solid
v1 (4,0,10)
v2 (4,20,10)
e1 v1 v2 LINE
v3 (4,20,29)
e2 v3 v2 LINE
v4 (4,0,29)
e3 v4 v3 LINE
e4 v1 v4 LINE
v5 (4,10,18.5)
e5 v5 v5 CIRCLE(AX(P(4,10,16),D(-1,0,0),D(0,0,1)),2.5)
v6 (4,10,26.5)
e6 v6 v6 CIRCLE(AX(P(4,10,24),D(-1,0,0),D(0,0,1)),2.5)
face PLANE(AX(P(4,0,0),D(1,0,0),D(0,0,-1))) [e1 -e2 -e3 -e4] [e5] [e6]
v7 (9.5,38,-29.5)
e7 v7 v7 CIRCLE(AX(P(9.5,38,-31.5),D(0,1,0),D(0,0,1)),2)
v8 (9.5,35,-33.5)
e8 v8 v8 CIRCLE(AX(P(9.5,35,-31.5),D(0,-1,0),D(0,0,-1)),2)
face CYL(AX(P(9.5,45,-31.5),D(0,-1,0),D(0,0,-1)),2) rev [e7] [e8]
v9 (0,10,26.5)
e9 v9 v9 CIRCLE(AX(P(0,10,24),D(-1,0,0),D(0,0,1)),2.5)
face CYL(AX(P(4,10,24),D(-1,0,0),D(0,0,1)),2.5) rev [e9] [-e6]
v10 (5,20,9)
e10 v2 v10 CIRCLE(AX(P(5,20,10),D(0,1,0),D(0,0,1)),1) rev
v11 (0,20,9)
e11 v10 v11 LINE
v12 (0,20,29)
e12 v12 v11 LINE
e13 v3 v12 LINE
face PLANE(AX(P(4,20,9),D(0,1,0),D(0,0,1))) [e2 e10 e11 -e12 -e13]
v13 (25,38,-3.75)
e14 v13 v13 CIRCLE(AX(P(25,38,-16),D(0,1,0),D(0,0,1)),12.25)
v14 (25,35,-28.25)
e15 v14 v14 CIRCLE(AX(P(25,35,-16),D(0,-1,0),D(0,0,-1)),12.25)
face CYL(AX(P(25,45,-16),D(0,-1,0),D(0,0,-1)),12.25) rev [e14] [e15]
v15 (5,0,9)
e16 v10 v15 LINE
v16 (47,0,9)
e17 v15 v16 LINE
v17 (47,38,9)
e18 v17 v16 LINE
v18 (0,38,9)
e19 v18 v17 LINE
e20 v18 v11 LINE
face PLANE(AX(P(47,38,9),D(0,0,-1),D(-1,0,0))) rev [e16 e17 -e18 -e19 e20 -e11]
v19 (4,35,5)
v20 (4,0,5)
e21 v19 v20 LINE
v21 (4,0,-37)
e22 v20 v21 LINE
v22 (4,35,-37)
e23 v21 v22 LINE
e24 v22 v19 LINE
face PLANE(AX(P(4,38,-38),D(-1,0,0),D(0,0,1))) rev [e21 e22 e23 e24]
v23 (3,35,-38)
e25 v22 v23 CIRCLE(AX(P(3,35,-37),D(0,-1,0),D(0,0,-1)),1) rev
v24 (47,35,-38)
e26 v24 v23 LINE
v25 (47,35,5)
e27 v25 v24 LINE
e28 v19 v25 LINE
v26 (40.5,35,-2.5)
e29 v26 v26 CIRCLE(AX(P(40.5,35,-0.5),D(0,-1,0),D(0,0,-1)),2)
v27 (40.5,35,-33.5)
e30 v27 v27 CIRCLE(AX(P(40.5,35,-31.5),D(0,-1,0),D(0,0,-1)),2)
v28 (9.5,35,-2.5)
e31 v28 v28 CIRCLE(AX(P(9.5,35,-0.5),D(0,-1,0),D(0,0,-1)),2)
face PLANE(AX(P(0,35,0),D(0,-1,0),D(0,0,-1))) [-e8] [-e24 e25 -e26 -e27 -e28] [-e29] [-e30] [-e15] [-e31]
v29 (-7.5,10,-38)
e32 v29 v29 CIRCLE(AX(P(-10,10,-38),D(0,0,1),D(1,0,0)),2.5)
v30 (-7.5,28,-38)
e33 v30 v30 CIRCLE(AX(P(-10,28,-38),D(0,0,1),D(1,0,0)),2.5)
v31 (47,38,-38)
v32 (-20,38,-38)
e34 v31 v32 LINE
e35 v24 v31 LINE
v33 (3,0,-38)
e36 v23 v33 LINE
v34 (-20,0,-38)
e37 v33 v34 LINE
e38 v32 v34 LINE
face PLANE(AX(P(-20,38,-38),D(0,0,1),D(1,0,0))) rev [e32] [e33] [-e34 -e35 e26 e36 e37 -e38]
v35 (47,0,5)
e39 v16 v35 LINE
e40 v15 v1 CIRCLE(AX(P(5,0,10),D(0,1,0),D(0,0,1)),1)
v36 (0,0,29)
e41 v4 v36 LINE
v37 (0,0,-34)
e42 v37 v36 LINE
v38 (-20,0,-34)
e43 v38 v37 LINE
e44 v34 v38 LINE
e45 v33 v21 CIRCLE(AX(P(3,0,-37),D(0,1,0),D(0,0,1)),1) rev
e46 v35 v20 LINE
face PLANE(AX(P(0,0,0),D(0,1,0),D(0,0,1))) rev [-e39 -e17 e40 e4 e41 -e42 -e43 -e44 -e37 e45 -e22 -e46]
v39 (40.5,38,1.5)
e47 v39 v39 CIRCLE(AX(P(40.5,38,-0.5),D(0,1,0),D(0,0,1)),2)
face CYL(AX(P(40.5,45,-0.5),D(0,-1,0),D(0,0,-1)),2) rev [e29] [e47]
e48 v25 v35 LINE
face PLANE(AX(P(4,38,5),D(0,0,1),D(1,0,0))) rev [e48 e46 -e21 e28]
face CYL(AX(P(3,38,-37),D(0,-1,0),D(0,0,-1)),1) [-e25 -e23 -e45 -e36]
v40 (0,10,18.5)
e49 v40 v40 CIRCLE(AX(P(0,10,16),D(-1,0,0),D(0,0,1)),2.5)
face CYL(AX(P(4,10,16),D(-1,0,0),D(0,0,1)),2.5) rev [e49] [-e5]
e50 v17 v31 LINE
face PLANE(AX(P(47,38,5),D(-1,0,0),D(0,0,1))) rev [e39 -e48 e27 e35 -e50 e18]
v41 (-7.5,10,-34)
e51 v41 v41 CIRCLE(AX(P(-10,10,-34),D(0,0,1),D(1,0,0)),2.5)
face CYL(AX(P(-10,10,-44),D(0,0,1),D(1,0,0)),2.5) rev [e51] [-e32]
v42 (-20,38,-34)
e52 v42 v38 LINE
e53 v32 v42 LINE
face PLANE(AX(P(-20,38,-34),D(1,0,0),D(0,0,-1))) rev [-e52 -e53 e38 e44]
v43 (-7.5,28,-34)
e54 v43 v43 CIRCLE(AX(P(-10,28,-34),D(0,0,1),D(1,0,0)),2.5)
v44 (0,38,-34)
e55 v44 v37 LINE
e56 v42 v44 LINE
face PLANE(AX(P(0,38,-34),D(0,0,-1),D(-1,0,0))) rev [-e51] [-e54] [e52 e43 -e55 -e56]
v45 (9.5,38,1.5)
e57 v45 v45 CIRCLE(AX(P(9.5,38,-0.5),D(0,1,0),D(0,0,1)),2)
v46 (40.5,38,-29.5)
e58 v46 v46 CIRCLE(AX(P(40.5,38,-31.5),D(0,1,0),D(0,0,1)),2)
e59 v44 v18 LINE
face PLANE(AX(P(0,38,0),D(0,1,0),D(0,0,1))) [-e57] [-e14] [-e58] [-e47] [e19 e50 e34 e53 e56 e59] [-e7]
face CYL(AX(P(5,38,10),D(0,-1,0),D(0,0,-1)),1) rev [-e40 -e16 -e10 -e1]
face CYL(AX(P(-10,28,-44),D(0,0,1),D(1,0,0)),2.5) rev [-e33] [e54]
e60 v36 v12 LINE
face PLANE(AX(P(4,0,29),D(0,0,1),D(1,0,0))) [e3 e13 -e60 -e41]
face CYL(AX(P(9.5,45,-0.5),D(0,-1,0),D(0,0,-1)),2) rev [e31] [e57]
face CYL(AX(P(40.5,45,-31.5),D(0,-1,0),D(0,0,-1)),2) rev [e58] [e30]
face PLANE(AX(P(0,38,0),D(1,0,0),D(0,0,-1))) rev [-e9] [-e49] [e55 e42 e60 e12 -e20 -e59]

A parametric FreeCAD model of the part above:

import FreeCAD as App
import Part
import Sketcher
from FreeCAD import Vector


def edges_at(feature, points):
    """Names of the edges that pass closest to the given points."""
    edges = feature.Shape.Edges
    near = lambda p: min(range(len(edges)), key=lambda i: edges[i].distToShape(Part.Vertex(*p))[0])
    return sorted({f"Edge{near(p) + 1}" for p in points})


def add_polygon(sketch, points):
    """Adds a closed chain of lines whose ends are joined by coincident constraints."""
    first, n = sketch.GeometryCount, len(points)
    for a, b in zip(points, points[1:] + points[:1]):
        sketch.addGeometry(Part.LineSegment(App.Vector(*a, 0), App.Vector(*b, 0)), False)
    for i in range(n):
        sketch.addConstraint(Sketcher.Constraint("Coincident", first + i, 2, first + (i + 1) % n, 1))

doc = App.newDocument("Part")
body = doc.addObject("PartDesign::Body", "Body")

sketch1 = doc.addObject("Sketcher::SketchObject", "Sketch")
body.addObject(sketch1)
sketch1.AttachmentSupport = (doc.XZ_Plane, [""])
sketch1.MapMode = "FlatFace"
add_polygon(sketch1, [(0, -34), (0, 9), (47, 9), (47, 5), (4, 5), (4, -38), (-20, -38), (-20, -34)])
sketch1.addConstraint(Sketcher.Constraint("Vertical", 0))
sketch1.addConstraint(Sketcher.Constraint("Horizontal", 1))
sketch1.addConstraint(Sketcher.Constraint("Vertical", 2))
sketch1.addConstraint(Sketcher.Constraint("Horizontal", 3))
sketch1.addConstraint(Sketcher.Constraint("Vertical", 4))
sketch1.addConstraint(Sketcher.Constraint("Horizontal", 5))
sketch1.addConstraint(Sketcher.Constraint("Vertical", 6))
sketch1.addConstraint(Sketcher.Constraint("Horizontal", 7))
sketch1.addConstraint(Sketcher.Constraint("PointOnObject", 0, 2, -2))
sketch1.addConstraint(Sketcher.Constraint("Equal", 3, 0))
sketch1.addConstraint(Sketcher.Constraint("Equal", 0, 4))
sketch1.addConstraint(Sketcher.Constraint("DistanceX", 1, 1, 1, 2, 47.0))
sketch1.addConstraint(Sketcher.Constraint("DistanceX", 3, 2, 3, 1, 43.0))
sketch1.addConstraint(Sketcher.Constraint("DistanceX", 5, 2, 5, 1, 24.0))
sketch1.addConstraint(Sketcher.Constraint("DistanceY", 2, 2, 2, 1, 4.0))
sketch1.addConstraint(Sketcher.Constraint("DistanceY", -1, 1, 0, 2, 9.0))
pad1 = doc.addObject("PartDesign::Pad", "Pad")
body.addObject(pad1)
pad1.Profile = sketch1
pad1.Length = 38
pad1.Reversed = True

sketch2 = doc.addObject("Sketcher::SketchObject", "Sketch001")
body.addObject(sketch2)
sketch2.AttachmentSupport = (doc.XZ_Plane, [""])
sketch2.MapMode = "FlatFace"
sketch2.AttachmentOffset = App.Placement(Vector(0, 0, -38), App.Rotation())
add_polygon(sketch2, [(4, -38), (4, 5), (47, 5), (47, -38)])
sketch2.addConstraint(Sketcher.Constraint("Vertical", 0))
sketch2.addConstraint(Sketcher.Constraint("Horizontal", 1))
sketch2.addConstraint(Sketcher.Constraint("Vertical", 2))
sketch2.addConstraint(Sketcher.Constraint("Horizontal", 3))
sketch2.addConstraint(Sketcher.Constraint("Equal", 3, 0))
sketch2.addConstraint(Sketcher.Constraint("DistanceX", 1, 1, 1, 2, 43.0))
sketch2.addConstraint(Sketcher.Constraint("DistanceX", -1, 1, 0, 2, 4.0))
sketch2.addConstraint(Sketcher.Constraint("DistanceY", -1, 1, 0, 2, 5.0))
pad2 = doc.addObject("PartDesign::Pad", "Pad001")
body.addObject(pad2)
pad2.Profile = sketch2
pad2.Length = 3

sketch3 = doc.addObject("Sketcher::SketchObject", "Sketch002")
body.addObject(sketch3)
sketch3.AttachmentSupport = (doc.XZ_Plane, [""])
sketch3.MapMode = "FlatFace"
sketch3.AttachmentOffset = App.Placement(Vector(0, 0, -35), App.Rotation())
sketch3.addGeometry(Part.Circle(Vector(40.5, -31.5, 0), Vector(0, 0, 1), 2), False)
sketch3.addGeometry(Part.Circle(Vector(9.5, -31.5, 0), Vector(0, 0, 1), 2), False)
sketch3.addGeometry(Part.Circle(Vector(9.5, -0.5, 0), Vector(0, 0, 1), 2), False)
sketch3.addGeometry(Part.Circle(Vector(40.5, -0.5, 0), Vector(0, 0, 1), 2), False)
sketch3.addGeometry(Part.Circle(Vector(25, -16, 0), Vector(0, 0, 1), 12.2), False)
sketch3.addConstraint(Sketcher.Constraint("Equal", 0, 1))
sketch3.addConstraint(Sketcher.Constraint("Equal", 1, 2))
sketch3.addConstraint(Sketcher.Constraint("Equal", 2, 3))
sketch3.addConstraint(Sketcher.Constraint("Horizontal", 0, 3, 1, 3))
sketch3.addConstraint(Sketcher.Constraint("Horizontal", 2, 3, 3, 3))
sketch3.addConstraint(Sketcher.Constraint("Vertical", 1, 3, 2, 3))
sketch3.addConstraint(Sketcher.Constraint("Vertical", 0, 3, 3, 3))
sketch3.addConstraint(Sketcher.Constraint("Diameter", 0, 4.0))
sketch3.addConstraint(Sketcher.Constraint("Diameter", 4, 24.5))
sketch3.addConstraint(Sketcher.Constraint("DistanceX", -1, 1, 4, 3, 25.0))
sketch3.addConstraint(Sketcher.Constraint("DistanceY", 4, 3, -1, 1, 16.0))
sketch3.addConstraint(Sketcher.Constraint("DistanceX", 1, 3, 0, 3, 31.0))
sketch3.addConstraint(Sketcher.Constraint("DistanceY", 1, 3, 2, 3, 31.0))
sketch3.addConstraint(Sketcher.Constraint("DistanceX", -1, 1, 0, 3, 40.5))
sketch3.addConstraint(Sketcher.Constraint("DistanceY", 0, 3, -1, 1, 31.5))
pocket1 = doc.addObject("PartDesign::Pocket", "Pocket")
body.addObject(pocket1)
pocket1.Profile = sketch3
pocket1.Length = 10

sketch4 = doc.addObject("Sketcher::SketchObject", "Sketch003")
body.addObject(sketch4)
sketch4.AttachmentSupport = (doc.XY_Plane, [""])
sketch4.MapMode = "FlatFace"
sketch4.AttachmentOffset = App.Placement(Vector(0, 0, -34), App.Rotation())
sketch4.addGeometry(Part.Circle(Vector(-10, 10, 0), Vector(0, 0, 1), 2.5), False)
sketch4.addGeometry(Part.Circle(Vector(-10, 28, 0), Vector(0, 0, 1), 2.5), False)
sketch4.addConstraint(Sketcher.Constraint("Equal", 0, 1))
sketch4.addConstraint(Sketcher.Constraint("Vertical", 0, 3, 1, 3))
sketch4.addConstraint(Sketcher.Constraint("Diameter", 0, 5.0))
sketch4.addConstraint(Sketcher.Constraint("DistanceX", 0, 3, -1, 1, 10.0))
sketch4.addConstraint(Sketcher.Constraint("DistanceY", -1, 1, 0, 3, 10.0))
sketch4.addConstraint(Sketcher.Constraint("DistanceY", -1, 1, 1, 3, 28.0))
pocket2 = doc.addObject("PartDesign::Pocket", "Pocket001")
body.addObject(pocket2)
pocket2.Profile = sketch4
pocket2.Length = 10

sketch5 = doc.addObject("Sketcher::SketchObject", "Sketch004")
body.addObject(sketch5)
sketch5.AttachmentSupport = (doc.YZ_Plane, [""])
sketch5.MapMode = "FlatFace"
add_polygon(sketch5, [(20, 9), (0, 9), (0, 29), (20, 29)])
sketch5.addGeometry(Part.Circle(Vector(10, 16, 0), Vector(0, 0, 1), 2.5), False)
sketch5.addGeometry(Part.Circle(Vector(10, 24, 0), Vector(0, 0, 1), 2.5), False)
sketch5.addConstraint(Sketcher.Constraint("Horizontal", 0))
sketch5.addConstraint(Sketcher.Constraint("Vertical", 1))
sketch5.addConstraint(Sketcher.Constraint("Horizontal", 2))
sketch5.addConstraint(Sketcher.Constraint("Vertical", 3))
sketch5.addConstraint(Sketcher.Constraint("Equal", 4, 5))
sketch5.addConstraint(Sketcher.Constraint("PointOnObject", 0, 2, -2))
sketch5.addConstraint(Sketcher.Constraint("Vertical", 4, 3, 5, 3))
sketch5.addConstraint(Sketcher.Constraint("Equal", 2, 1))
sketch5.addConstraint(Sketcher.Constraint("Diameter", 4, 5.0))
sketch5.addConstraint(Sketcher.Constraint("DistanceX", 0, 2, 0, 1, 20.0))
sketch5.addConstraint(Sketcher.Constraint("DistanceX", -1, 1, 4, 3, 10.0))
sketch5.addConstraint(Sketcher.Constraint("DistanceY", -1, 1, 4, 3, 16.0))
sketch5.addConstraint(Sketcher.Constraint("DistanceY", -1, 1, 5, 3, 24.0))
sketch5.addConstraint(Sketcher.Constraint("DistanceY", -1, 1, 0, 2, 9.0))
pad3 = doc.addObject("PartDesign::Pad", "Pad002")
body.addObject(pad3)
pad3.Profile = sketch5
pad3.Length = 4
doc.recompute()

fillet = doc.addObject("PartDesign::Fillet", "Fillet")
body.addObject(fillet)
fillet.Base = (pad3, edges_at(pad3, [(4, 17.5, -38), (4, 10, 9)]))
fillet.Radius = 1

doc.recompute()
